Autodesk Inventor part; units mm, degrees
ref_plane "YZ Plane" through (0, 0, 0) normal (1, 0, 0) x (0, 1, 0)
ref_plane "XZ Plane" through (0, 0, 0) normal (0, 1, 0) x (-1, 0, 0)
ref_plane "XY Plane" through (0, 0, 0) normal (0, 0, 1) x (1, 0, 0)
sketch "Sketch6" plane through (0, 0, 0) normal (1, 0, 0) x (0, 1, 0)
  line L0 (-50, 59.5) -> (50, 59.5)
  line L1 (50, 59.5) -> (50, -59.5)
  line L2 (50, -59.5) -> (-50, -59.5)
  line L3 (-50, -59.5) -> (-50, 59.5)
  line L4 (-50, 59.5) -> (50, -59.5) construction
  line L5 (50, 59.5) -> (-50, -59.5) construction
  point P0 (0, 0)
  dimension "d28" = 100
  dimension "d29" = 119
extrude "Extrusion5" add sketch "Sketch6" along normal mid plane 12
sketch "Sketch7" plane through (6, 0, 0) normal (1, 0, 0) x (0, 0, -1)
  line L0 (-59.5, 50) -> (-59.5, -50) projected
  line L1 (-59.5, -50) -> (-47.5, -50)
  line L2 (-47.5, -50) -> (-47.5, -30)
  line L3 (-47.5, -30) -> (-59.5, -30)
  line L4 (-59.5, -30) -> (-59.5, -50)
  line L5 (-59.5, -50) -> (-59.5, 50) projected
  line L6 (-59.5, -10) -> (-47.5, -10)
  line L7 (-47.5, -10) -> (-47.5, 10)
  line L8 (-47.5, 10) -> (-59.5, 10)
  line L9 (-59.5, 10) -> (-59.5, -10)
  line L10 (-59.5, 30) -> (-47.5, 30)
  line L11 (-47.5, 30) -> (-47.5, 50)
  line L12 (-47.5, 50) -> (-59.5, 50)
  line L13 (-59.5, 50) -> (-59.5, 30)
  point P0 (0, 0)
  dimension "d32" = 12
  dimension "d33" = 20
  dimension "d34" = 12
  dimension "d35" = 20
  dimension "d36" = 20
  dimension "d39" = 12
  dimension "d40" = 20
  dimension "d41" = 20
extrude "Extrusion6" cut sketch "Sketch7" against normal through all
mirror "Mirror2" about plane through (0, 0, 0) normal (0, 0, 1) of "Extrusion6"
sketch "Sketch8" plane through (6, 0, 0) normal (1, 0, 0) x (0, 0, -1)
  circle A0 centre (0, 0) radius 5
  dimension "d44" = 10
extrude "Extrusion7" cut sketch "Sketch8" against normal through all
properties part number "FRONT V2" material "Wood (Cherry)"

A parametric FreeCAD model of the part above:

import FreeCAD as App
import Part
import Sketcher
from FreeCAD import Vector

doc = App.newDocument("Part")
params = doc.addObject("Spreadsheet::Sheet", "Params")
for row, (alias, value) in enumerate([
    ("sketch1_width", "100 mm"),
    ("sketch1_height", "119 mm"),
    ("pad1_length", "12 mm"),
    ("sketch2_width", "20 mm"),
    ("sketch2_height", "12 mm"),
    ("sketch3_diameter", "10 mm"),
], start=1):
    params.set(f"A{row}", alias)
    params.set(f"B{row}", "=" + value)
    params.setAlias(f"B{row}", alias)

body = doc.addObject("PartDesign::Body", "Body")

# Sketch on YZ plane
sketch1 = body.newObject("Sketcher::SketchObject", "Sketch")
sketch1.AttachmentSupport = (doc.getObject("YZ_Plane"), [""])
sketch1.MapMode = "FlatFace"
sketch1.addGeometry(Part.LineSegment(Vector(50, 60, 0), Vector(-50, 60, 0)), False)
sketch1.addGeometry(Part.LineSegment(Vector(-50, 60, 0), Vector(-50, -60, 0)), False)
sketch1.addGeometry(Part.LineSegment(Vector(-50, -60, 0), Vector(50, -60, 0)), False)
sketch1.addGeometry(Part.LineSegment(Vector(50, -60, 0), Vector(50, 60, 0)), False)
sketch1.addConstraint(Sketcher.Constraint("Coincident", 0, 2, 1, 1))
sketch1.addConstraint(Sketcher.Constraint("Coincident", 1, 2, 2, 1))
sketch1.addConstraint(Sketcher.Constraint("Coincident", 2, 2, 3, 1))
sketch1.addConstraint(Sketcher.Constraint("Coincident", 3, 2, 0, 1))
sketch1.addConstraint(Sketcher.Constraint("Horizontal", 0))
sketch1.addConstraint(Sketcher.Constraint("Vertical", 1))
sketch1.addConstraint(Sketcher.Constraint("Horizontal", 2))
sketch1.addConstraint(Sketcher.Constraint("Vertical", 3))
sketch1.addConstraint(Sketcher.Constraint("Symmetric", 0, 2, 2, 2, -1, 1))
sketch1.addConstraint(Sketcher.Constraint("DistanceX", 0, 2, 0, 1, 100.0))
sketch1.addConstraint(Sketcher.Constraint("DistanceY", 1, 2, 1, 1, 119.0))
sketch1.setExpression("Constraints[9]", "Params.sketch1_width")
sketch1.setExpression("Constraints[10]", "Params.sketch1_height")
pad1 = body.newObject("PartDesign::Pad", "Pad")
pad1.Profile = sketch1
pad1.setExpression("Length", "Params.pad1_length")
pad1.Midplane = True

# Sketch on YZ plane
sketch2 = body.newObject("Sketcher::SketchObject", "Sketch001")
sketch2.AttachmentSupport = (doc.getObject("YZ_Plane"), [""])
sketch2.MapMode = "FlatFace"
sketch2.AttachmentOffset = App.Placement(Vector(0, 0, 6), App.Rotation())
sketch2.addGeometry(Part.LineSegment(Vector(50, 48, 0), Vector(50, 60, 0)), False)
sketch2.addGeometry(Part.LineSegment(Vector(50, 60, 0), Vector(30, 60, 0)), False)
sketch2.addGeometry(Part.LineSegment(Vector(30, 60, 0), Vector(30, 48, 0)), False)
sketch2.addGeometry(Part.LineSegment(Vector(30, 48, 0), Vector(50, 48, 0)), False)
sketch2.addGeometry(Part.LineSegment(Vector(-30, 48, 0), Vector(-30, 60, 0)), False)
sketch2.addGeometry(Part.LineSegment(Vector(-30, 60, 0), Vector(-50, 60, 0)), False)
sketch2.addGeometry(Part.LineSegment(Vector(-50, 60, 0), Vector(-50, 48, 0)), False)
sketch2.addGeometry(Part.LineSegment(Vector(-50, 48, 0), Vector(-30, 48, 0)), False)
sketch2.addGeometry(Part.LineSegment(Vector(10, 48, 0), Vector(10, 60, 0)), False)
sketch2.addGeometry(Part.LineSegment(Vector(10, 60, 0), Vector(-10, 60, 0)), False)
sketch2.addGeometry(Part.LineSegment(Vector(-10, 60, 0), Vector(-10, 48, 0)), False)
sketch2.addGeometry(Part.LineSegment(Vector(-10, 48, 0), Vector(10, 48, 0)), False)
sketch2.addConstraint(Sketcher.Constraint("Coincident", 0, 2, 1, 1))
sketch2.addConstraint(Sketcher.Constraint("Coincident", 1, 2, 2, 1))
sketch2.addConstraint(Sketcher.Constraint("Coincident", 2, 2, 3, 1))
sketch2.addConstraint(Sketcher.Constraint("Coincident", 3, 2, 0, 1))
sketch2.addConstraint(Sketcher.Constraint("Coincident", 4, 2, 5, 1))
sketch2.addConstraint(Sketcher.Constraint("Coincident", 5, 2, 6, 1))
sketch2.addConstraint(Sketcher.Constraint("Coincident", 6, 2, 7, 1))
sketch2.addConstraint(Sketcher.Constraint("Coincident", 7, 2, 4, 1))
sketch2.addConstraint(Sketcher.Constraint("Coincident", 8, 2, 9, 1))
sketch2.addConstraint(Sketcher.Constraint("Coincident", 9, 2, 10, 1))
sketch2.addConstraint(Sketcher.Constraint("Coincident", 10, 2, 11, 1))
sketch2.addConstraint(Sketcher.Constraint("Coincident", 11, 2, 8, 1))
sketch2.addConstraint(Sketcher.Constraint("Vertical", 0))
sketch2.addConstraint(Sketcher.Constraint("Horizontal", 1))
sketch2.addConstraint(Sketcher.Constraint("Vertical", 2))
sketch2.addConstraint(Sketcher.Constraint("Horizontal", 3))
sketch2.addConstraint(Sketcher.Constraint("Vertical", 4))
sketch2.addConstraint(Sketcher.Constraint("Horizontal", 5))
sketch2.addConstraint(Sketcher.Constraint("Vertical", 6))
sketch2.addConstraint(Sketcher.Constraint("Horizontal", 7))
sketch2.addConstraint(Sketcher.Constraint("Vertical", 8))
sketch2.addConstraint(Sketcher.Constraint("Horizontal", 9))
sketch2.addConstraint(Sketcher.Constraint("Vertical", 10))
sketch2.addConstraint(Sketcher.Constraint("Horizontal", 11))
sketch2.addConstraint(Sketcher.Constraint("Symmetric", 1, 2, 4, 2, -2))
sketch2.addConstraint(Sketcher.Constraint("Symmetric", 3, 2, 6, 2, -2))
sketch2.addConstraint(Sketcher.Constraint("Horizontal", 5, 2, 8, 2))
sketch2.addConstraint(Sketcher.Constraint("Horizontal", 7, 2, 10, 2))
sketch2.addConstraint(Sketcher.Constraint("Equal", 7, 9))
sketch2.addConstraint(Sketcher.Constraint("DistanceX", 1, 2, 1, 1, 20.0))
sketch2.addConstraint(Sketcher.Constraint("DistanceY", 0, 1, 0, 2, 12.0))
sketch2.addConstraint(Sketcher.Constraint("DistanceX", 8, 2, 1, 2, 20.0))
sketch2.addConstraint(Sketcher.Constraint("DistanceX", 4, 2, 9, 2, 20.0))
sketch2.addConstraint(Sketcher.Constraint("DistanceY", -1, 1, 0, 2, 59.5))
sketch2.setExpression("Constraints[29]", "Params.sketch2_width")
sketch2.setExpression("Constraints[30]", "Params.sketch2_height")
pocket1 = body.newObject("PartDesign::Pocket", "Pocket")
pocket1.Profile = sketch2
pocket1.Type = "ThroughAll"
doc.recompute()

mirrored = body.newObject("PartDesign::Mirrored", "Mirrored")
mirrored.Originals = [pocket1]
mirrored.MirrorPlane = (doc.getObject("XY_Plane"), [""])
body.Tip = mirrored

# Sketch on YZ plane
sketch3 = body.newObject("Sketcher::SketchObject", "Sketch002")
sketch3.AttachmentSupport = (doc.getObject("YZ_Plane"), [""])
sketch3.MapMode = "FlatFace"
sketch3.AttachmentOffset = App.Placement(Vector(0, 0, 6), App.Rotation())
sketch3.addGeometry(Part.Circle(Vector(0, 0, 0), Vector(0, 0, 1), 5), False)
sketch3.addConstraint(Sketcher.Constraint("Coincident", 0, 3, -1, 1))
sketch3.addConstraint(Sketcher.Constraint("Diameter", 0, 10.0))
sketch3.setExpression("Constraints[1]", "Params.sketch3_diameter")
pocket2 = body.newObject("PartDesign::Pocket", "Pocket001")
pocket2.Profile = sketch3
pocket2.Type = "ThroughAll"

doc.recompute()
